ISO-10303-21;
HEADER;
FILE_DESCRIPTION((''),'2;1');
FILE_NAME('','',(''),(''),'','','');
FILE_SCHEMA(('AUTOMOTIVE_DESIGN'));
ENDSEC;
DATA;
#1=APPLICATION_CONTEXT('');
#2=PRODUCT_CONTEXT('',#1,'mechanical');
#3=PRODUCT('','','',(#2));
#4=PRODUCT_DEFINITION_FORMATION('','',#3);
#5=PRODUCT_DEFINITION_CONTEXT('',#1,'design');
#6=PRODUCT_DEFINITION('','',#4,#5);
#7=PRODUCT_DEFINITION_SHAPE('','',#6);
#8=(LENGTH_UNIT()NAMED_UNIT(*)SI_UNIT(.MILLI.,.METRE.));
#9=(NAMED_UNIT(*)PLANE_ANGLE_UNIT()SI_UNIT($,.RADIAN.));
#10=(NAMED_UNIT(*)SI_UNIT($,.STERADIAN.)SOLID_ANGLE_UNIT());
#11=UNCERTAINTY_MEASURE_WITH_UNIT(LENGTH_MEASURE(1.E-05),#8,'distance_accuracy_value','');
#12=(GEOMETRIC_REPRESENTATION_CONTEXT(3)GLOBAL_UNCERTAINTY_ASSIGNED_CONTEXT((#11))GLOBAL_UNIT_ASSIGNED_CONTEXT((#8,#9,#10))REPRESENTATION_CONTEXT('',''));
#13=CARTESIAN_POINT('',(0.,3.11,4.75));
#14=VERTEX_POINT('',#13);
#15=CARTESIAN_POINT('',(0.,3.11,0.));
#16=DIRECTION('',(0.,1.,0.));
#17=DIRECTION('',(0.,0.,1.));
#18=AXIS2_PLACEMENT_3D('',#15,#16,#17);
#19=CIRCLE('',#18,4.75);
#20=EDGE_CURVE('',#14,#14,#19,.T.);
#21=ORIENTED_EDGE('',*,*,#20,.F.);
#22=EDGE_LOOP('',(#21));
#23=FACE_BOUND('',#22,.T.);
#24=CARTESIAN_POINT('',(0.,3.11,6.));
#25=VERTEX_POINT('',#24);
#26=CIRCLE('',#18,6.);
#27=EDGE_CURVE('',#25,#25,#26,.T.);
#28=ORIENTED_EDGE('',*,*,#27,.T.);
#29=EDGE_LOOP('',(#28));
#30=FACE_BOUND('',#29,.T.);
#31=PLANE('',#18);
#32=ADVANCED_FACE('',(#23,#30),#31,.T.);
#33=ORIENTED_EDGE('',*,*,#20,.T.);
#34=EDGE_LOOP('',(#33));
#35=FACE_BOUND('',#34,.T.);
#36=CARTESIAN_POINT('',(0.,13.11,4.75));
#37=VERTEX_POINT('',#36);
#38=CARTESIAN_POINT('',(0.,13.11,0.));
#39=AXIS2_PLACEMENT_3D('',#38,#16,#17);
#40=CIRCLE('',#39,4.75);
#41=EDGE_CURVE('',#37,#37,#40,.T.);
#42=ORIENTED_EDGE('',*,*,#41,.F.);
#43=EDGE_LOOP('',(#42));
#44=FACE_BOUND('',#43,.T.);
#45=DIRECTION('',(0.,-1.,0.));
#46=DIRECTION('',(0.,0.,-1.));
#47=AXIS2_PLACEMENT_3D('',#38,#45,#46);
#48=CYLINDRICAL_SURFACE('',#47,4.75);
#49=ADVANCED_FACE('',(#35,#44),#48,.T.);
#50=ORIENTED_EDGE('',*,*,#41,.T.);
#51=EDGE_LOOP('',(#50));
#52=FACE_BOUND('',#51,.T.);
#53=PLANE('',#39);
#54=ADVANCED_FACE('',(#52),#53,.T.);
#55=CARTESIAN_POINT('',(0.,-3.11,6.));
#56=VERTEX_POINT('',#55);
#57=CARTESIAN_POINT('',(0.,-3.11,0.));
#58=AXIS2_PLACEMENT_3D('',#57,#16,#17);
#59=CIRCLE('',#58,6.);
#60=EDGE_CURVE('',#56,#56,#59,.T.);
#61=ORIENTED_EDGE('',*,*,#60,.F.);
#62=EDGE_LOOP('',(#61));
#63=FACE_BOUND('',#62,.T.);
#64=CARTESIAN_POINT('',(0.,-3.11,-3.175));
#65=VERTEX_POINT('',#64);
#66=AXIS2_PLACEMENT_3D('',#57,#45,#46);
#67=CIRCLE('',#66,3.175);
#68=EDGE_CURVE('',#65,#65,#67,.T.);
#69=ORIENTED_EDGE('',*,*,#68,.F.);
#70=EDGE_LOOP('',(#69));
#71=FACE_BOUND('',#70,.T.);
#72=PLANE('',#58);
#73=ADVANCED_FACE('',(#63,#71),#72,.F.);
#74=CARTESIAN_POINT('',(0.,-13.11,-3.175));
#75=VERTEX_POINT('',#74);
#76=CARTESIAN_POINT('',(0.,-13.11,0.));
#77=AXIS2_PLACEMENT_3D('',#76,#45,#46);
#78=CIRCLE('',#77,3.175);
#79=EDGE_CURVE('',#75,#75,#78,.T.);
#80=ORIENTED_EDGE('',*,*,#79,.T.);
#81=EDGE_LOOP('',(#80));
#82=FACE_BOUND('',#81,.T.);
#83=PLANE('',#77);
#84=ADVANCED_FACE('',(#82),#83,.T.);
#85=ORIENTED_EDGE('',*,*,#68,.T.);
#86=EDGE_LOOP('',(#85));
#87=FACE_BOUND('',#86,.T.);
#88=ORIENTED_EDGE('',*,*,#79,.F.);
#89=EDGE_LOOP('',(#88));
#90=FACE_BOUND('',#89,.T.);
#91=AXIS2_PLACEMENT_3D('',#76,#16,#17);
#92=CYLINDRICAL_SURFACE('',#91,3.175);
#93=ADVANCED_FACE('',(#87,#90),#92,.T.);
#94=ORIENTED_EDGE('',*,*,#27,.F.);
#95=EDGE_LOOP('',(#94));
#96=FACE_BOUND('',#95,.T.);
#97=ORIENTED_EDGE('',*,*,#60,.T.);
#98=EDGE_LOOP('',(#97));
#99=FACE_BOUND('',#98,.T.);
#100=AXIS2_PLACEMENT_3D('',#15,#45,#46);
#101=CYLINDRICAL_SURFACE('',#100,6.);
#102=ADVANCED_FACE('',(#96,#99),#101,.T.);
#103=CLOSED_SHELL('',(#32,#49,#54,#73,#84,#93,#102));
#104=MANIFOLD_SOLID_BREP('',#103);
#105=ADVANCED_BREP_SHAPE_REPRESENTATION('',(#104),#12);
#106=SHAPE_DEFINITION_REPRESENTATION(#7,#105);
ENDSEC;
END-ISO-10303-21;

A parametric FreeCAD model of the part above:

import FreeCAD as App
import Part
import Sketcher

V = App.Vector

doc = App.newDocument("Part")
body = doc.addObject("PartDesign::Body", "Body")

sketch1 = body.newObject("Sketcher::SketchObject", "Sketch")
sketch1.AttachmentSupport = (doc.getObject("XZ_Plane"), [""])
sketch1.MapMode = "FlatFace"
sketch1.addGeometry(Part.Circle(V(0, 0, 0), V(0, 0, 1), 6), False)
sketch1.addConstraint([
    Sketcher.Constraint("Coincident", 0, 3, -1, 1),
    Sketcher.Constraint("Diameter", 0, 12.0),
])
pad1 = body.newObject("PartDesign::Pad", "Pad")
pad1.Profile = sketch1
pad1.Length = 6.22
pad1.Midplane = True

sketch2 = body.newObject("Sketcher::SketchObject", "Sketch001")
sketch2.AttachmentSupport = (doc.getObject("XZ_Plane"), [""])
sketch2.MapMode = "FlatFace"
sketch2.AttachmentOffset = App.Placement(V(0, 0, -3.11), App.Rotation())
sketch2.addGeometry(Part.Circle(V(0, 0, 0), V(0, 0, 1), 4.8), False)
sketch2.addConstraint([
    Sketcher.Constraint("Coincident", 0, 3, -1, 1),
    Sketcher.Constraint("Diameter", 0, 9.5),
])
pad2 = body.newObject("PartDesign::Pad", "Pad001")
pad2.Profile = sketch2
pad2.Length = 10
pad2.Reversed = True

sketch3 = body.newObject("Sketcher::SketchObject", "Sketch002")
sketch3.AttachmentSupport = (doc.getObject("XZ_Plane"), [""])
sketch3.MapMode = "FlatFace"
sketch3.AttachmentOffset = App.Placement(V(0, 0, 3.11), App.Rotation())
sketch3.addGeometry(Part.Circle(V(0, 0, 0), V(0, 0, 1), 3.2), False)
sketch3.addConstraint([
    Sketcher.Constraint("Coincident", 0, 3, -1, 1),
    Sketcher.Constraint("Diameter", 0, 6.35),
])
pad3 = body.newObject("PartDesign::Pad", "Pad002")
pad3.Profile = sketch3
pad3.Length = 10

doc.recompute()
